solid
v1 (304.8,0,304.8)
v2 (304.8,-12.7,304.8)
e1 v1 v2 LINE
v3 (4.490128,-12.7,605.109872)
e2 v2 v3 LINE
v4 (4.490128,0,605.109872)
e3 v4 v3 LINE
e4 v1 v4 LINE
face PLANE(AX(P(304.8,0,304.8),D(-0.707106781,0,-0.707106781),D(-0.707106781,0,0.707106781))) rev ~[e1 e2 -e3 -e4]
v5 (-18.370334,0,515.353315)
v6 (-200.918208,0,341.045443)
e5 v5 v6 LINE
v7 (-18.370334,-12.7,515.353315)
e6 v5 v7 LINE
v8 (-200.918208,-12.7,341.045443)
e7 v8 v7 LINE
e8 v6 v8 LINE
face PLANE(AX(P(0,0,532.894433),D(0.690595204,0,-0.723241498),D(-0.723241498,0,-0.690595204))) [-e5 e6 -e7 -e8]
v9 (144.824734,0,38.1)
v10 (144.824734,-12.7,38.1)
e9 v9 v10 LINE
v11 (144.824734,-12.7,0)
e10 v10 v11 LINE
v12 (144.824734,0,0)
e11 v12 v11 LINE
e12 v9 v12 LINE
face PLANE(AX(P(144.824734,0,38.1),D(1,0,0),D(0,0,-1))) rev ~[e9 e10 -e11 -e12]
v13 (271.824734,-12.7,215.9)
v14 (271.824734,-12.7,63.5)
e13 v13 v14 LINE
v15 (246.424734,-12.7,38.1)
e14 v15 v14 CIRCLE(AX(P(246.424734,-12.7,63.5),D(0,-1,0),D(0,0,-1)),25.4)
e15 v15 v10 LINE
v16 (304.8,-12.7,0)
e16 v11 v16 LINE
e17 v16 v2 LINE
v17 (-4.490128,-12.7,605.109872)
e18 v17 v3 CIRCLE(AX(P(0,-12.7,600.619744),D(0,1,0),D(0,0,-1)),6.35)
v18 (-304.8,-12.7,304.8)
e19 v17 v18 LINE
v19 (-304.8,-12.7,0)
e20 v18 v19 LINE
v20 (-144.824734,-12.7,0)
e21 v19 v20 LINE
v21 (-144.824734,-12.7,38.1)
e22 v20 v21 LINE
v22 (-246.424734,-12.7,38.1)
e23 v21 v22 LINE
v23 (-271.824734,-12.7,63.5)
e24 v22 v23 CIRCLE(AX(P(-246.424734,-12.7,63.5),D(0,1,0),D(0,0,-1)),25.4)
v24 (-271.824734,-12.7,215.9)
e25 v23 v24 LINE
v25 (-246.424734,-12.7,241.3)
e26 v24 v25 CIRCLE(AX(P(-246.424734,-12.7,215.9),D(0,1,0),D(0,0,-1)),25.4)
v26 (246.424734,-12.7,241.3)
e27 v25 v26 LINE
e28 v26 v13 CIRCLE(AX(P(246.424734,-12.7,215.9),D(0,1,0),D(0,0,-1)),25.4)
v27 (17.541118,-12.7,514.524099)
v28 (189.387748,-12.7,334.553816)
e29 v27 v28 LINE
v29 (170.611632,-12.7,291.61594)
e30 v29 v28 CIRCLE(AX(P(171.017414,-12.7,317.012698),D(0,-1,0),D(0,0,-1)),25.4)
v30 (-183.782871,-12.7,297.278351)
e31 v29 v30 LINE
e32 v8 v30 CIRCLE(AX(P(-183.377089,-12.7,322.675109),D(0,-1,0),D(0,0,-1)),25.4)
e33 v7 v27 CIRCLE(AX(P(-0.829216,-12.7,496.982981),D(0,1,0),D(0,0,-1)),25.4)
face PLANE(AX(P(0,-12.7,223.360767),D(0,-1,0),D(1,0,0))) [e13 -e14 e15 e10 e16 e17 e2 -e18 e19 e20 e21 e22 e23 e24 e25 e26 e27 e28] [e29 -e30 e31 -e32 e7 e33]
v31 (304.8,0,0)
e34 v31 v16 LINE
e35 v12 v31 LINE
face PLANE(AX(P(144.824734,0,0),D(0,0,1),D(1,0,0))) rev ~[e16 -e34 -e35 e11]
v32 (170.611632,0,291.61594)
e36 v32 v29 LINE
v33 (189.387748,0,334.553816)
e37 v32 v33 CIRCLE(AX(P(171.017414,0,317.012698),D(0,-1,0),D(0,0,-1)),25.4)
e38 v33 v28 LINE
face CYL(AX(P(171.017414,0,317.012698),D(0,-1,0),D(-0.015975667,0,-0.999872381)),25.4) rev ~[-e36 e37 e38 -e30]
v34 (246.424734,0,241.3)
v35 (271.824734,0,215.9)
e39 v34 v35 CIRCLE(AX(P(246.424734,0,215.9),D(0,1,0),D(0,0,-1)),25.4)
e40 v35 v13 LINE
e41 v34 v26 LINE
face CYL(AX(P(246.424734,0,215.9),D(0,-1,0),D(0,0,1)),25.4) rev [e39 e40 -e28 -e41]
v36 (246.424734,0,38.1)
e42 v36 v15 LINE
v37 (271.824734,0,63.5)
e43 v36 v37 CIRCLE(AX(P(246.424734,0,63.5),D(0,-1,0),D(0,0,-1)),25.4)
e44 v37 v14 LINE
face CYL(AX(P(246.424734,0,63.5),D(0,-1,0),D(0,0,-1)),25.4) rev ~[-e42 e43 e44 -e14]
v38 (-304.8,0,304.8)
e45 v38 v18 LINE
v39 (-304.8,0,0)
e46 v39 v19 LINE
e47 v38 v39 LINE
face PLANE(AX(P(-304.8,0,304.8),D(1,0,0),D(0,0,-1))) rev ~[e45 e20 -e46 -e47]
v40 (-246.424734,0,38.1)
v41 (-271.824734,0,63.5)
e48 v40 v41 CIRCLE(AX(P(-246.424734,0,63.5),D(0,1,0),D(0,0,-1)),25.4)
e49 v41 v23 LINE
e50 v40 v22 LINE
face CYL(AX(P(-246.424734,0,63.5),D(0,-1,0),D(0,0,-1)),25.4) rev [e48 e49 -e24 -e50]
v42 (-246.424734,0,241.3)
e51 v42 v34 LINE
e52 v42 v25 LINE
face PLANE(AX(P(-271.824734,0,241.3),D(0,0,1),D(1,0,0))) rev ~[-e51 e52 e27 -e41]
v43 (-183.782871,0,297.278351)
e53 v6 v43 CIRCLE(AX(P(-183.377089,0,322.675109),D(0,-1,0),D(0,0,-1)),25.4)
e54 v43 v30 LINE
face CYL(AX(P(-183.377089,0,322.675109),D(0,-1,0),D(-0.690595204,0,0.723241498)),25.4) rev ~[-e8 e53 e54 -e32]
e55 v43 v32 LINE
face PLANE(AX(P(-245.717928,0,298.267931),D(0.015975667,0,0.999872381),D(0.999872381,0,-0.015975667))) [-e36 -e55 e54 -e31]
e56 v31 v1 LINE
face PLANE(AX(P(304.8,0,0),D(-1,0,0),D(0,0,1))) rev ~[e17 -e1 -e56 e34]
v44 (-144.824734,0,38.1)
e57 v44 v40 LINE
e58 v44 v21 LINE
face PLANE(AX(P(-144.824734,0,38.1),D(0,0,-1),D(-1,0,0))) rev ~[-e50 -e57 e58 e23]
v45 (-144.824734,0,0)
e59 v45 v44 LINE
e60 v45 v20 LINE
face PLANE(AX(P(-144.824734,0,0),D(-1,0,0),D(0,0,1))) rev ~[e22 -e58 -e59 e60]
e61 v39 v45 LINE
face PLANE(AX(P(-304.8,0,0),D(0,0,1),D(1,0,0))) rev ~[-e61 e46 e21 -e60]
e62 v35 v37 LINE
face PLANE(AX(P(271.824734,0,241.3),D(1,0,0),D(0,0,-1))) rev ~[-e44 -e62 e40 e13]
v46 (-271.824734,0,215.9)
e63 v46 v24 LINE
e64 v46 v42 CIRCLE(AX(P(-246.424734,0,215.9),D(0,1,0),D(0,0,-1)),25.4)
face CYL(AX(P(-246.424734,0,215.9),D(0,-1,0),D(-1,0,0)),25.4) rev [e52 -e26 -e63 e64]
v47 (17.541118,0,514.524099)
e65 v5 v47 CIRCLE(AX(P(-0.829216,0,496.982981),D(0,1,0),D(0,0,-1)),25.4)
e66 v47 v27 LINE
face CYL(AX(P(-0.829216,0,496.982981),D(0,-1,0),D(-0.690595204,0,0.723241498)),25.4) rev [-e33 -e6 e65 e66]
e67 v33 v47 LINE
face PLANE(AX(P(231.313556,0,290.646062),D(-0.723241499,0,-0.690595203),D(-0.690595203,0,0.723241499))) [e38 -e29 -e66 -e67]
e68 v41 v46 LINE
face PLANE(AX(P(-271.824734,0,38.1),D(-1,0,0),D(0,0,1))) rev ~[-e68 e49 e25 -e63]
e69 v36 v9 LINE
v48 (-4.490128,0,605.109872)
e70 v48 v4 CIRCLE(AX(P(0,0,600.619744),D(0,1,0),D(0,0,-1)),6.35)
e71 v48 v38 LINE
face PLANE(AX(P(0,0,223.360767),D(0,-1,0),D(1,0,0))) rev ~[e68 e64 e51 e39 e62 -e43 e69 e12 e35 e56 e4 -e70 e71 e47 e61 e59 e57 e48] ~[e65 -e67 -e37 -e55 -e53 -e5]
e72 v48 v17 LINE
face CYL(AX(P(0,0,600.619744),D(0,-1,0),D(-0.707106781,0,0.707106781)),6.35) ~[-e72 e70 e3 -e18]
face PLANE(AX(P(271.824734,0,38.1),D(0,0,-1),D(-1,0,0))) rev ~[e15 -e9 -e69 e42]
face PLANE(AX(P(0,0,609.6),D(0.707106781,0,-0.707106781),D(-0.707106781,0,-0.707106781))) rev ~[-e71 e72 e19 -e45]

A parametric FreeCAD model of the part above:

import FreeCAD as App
import Part
import Sketcher
Q = App.Units.Quantity


def edges_at(feature, points):
    """Names of the edges that pass closest to the given points."""
    edges = feature.Shape.Edges
    near = lambda p: min(range(len(edges)), key=lambda i: edges[i].distToShape(Part.Vertex(*p))[0])
    return sorted({f"Edge{near(p) + 1}" for p in points})

doc = App.newDocument("Part")
params = doc.addObject("Spreadsheet::Sheet", "Params")
for row, (alias, value) in enumerate([
    ("sketch1_width", "5 in"),
    ("sketch1_height", "12 in"),
    ("sketch1_height2", "8 in"),
    ("sketch1_height3", "1.5 in"),
    ("pad1_length", "0.5 in"),
    ("fillet_radius", "0.25 in"),
    ("fillet2_radius", "1 in"),
], start=1):
    params.set(f"A{row}", alias)
    params.set(f"B{row}", "=" + value)
    params.setAlias(f"B{row}", alias)

body = doc.addObject("PartDesign::Body", "Body")

sketch1 = body.newObject("Sketcher::SketchObject", "Sketch")
sketch1.AttachmentSupport = (doc.getObject("XZ_Plane"), [""])
sketch1.MapMode = "FlatFace"
sketch1.addGeometry([
    Part.LineSegment(App.Vector(-305, 305, 0), App.Vector(-305, 0, 0)),
    Part.LineSegment(App.Vector(-305, 0, 0), App.Vector(-145, 0, 0)),
    Part.LineSegment(App.Vector(-145, 0, 0), App.Vector(-145, 38, 0)),
    Part.LineSegment(App.Vector(-145, 38, 0), App.Vector(-272, 38, 0)),
    Part.LineSegment(App.Vector(-272, 38, 0), App.Vector(-272, 241, 0)),
    Part.LineSegment(App.Vector(-272, 241, 0), App.Vector(272, 241, 0)),
    Part.LineSegment(App.Vector(272, 241, 0), App.Vector(272, 38, 0)),
    Part.LineSegment(App.Vector(272, 38, 0), App.Vector(145, 38, 0)),
    Part.LineSegment(App.Vector(145, 38, 0), App.Vector(145, 0, 0)),
    Part.LineSegment(App.Vector(145, 0, 0), App.Vector(305, 0, 0)),
    Part.LineSegment(App.Vector(305, 0, 0), App.Vector(305, 305, 0)),
    Part.LineSegment(App.Vector(305, 305, 0), App.Vector(0, 610, 0)),
    Part.LineSegment(App.Vector(0, 610, 0), App.Vector(-305, 305, 0)),
], False)
sketch1.addConstraint([
    Sketcher.Constraint("Coincident", 0, 2, 1, 1),
    Sketcher.Constraint("Coincident", 1, 2, 2, 1),
    Sketcher.Constraint("Coincident", 2, 2, 3, 1),
    Sketcher.Constraint("Coincident", 3, 2, 4, 1),
    Sketcher.Constraint("Coincident", 4, 2, 5, 1),
    Sketcher.Constraint("Coincident", 5, 2, 6, 1),
    Sketcher.Constraint("Coincident", 6, 2, 7, 1),
    Sketcher.Constraint("Coincident", 7, 2, 8, 1),
    Sketcher.Constraint("Coincident", 8, 2, 9, 1),
    Sketcher.Constraint("Coincident", 9, 2, 10, 1),
    Sketcher.Constraint("Coincident", 10, 2, 11, 1),
    Sketcher.Constraint("Coincident", 11, 2, 12, 1),
    Sketcher.Constraint("Coincident", 12, 2, 0, 1),
    Sketcher.Constraint("Vertical", 0),
    Sketcher.Constraint("Horizontal", 1),
    Sketcher.Constraint("Vertical", 2),
    Sketcher.Constraint("Horizontal", 3),
    Sketcher.Constraint("Vertical", 4),
    Sketcher.Constraint("Horizontal", 5),
    Sketcher.Constraint("Vertical", 6),
    Sketcher.Constraint("Horizontal", 7),
    Sketcher.Constraint("Vertical", 8),
    Sketcher.Constraint("Horizontal", 9),
    Sketcher.Constraint("Vertical", 10),
    Sketcher.Constraint("Symmetric", 1, 2, 8, 2, -1, 1),
    Sketcher.Constraint("Symmetric", 3, 2, 6, 2, -2),
    Sketcher.Constraint("Symmetric", 0, 2, 9, 2, -2),
    Sketcher.Constraint("PointOnObject", 11, 2, -2),
    Sketcher.Constraint("Perpendicular", 11, 12),
    Sketcher.Constraint("Horizontal", 10, 2, 12, 2),
    Sketcher.Constraint("DistanceX", 3, 2, 3, 1, Q("5 in")),
    Sketcher.Constraint("DistanceY", 0, 2, 0, 1, Q("12 in")),
    Sketcher.Constraint("DistanceY", 4, 1, 4, 2, Q("8 in")),
    Sketcher.Constraint("DistanceY", 2, 1, 2, 2, Q("1.5 in")),
    Sketcher.Constraint("DistanceX", 0, 2, -1, 1, Q("12 in")),
    Sketcher.Constraint("DistanceX", 5, 1, 5, 2, 543.649468),
])
sketch1.setExpression("Constraints[30]", "Params.sketch1_width")
sketch1.setExpression("Constraints[31]", "Params.sketch1_height")
sketch1.setExpression("Constraints[32]", "Params.sketch1_height2")
sketch1.setExpression("Constraints[33]", "Params.sketch1_height3")
pad1 = body.newObject("PartDesign::Pad", "Pad")
pad1.Profile = sketch1
pad1.setExpression("Length", "Params.pad1_length")

sketch2 = body.newObject("Sketcher::SketchObject", "Sketch001")
sketch2.AttachmentSupport = (doc.getObject("XZ_Plane"), [""])
sketch2.MapMode = "FlatFace"
sketch2.addGeometry([
    Part.LineSegment(App.Vector(0, 533, 0), App.Vector(-246, 298, 0)),
    Part.LineSegment(App.Vector(-246, 298, 0), App.Vector(231, 291, 0)),
    Part.LineSegment(App.Vector(231, 291, 0), App.Vector(0, 533, 0)),
], False)
sketch2.addConstraint([
    Sketcher.Constraint("Coincident", 0, 2, 1, 1),
    Sketcher.Constraint("Coincident", 1, 2, 2, 1),
    Sketcher.Constraint("Coincident", 2, 2, 0, 1),
    Sketcher.Constraint("PointOnObject", 2, 2, -2),
    Sketcher.Constraint("Perpendicular", 0, 2),
    Sketcher.Constraint("Distance", 0, 339.745339),
    Sketcher.Constraint("Distance", 1, 477.09237),
    Sketcher.Constraint("DistanceX", 0, 2, -1, 1, 245.717928),
    Sketcher.Constraint("DistanceY", -1, 1, 0, 2, 298.267931),
])
pocket1 = body.newObject("PartDesign::Pocket", "Pocket")
pocket1.Profile = sketch2
pocket1.Type = "ThroughAll"
pocket1.Reversed = True
doc.recompute()

fillet = body.newObject("PartDesign::Fillet", "Fillet")
fillet.Base = (pocket1, edges_at(pocket1, [(0, -6.35, 609.6)]))
fillet.setExpression("Radius", "Params.fillet_radius")
doc.recompute()

fillet2 = body.newObject("PartDesign::Fillet", "Fillet001")
fillet2.Base = (fillet, edges_at(fillet, [
    (-271.825, -6.35, 38.1),
    (-271.825, -6.35, 241.3),
    (271.825, -6.35, 241.3),
    (271.825, -6.35, 38.1),
    (-245.718, -6.35, 298.268),
    (231.314, -6.35, 290.646),
    (0, -6.35, 532.894),
]))
fillet2.setExpression("Radius", "Params.fillet2_radius")

doc.recompute()
